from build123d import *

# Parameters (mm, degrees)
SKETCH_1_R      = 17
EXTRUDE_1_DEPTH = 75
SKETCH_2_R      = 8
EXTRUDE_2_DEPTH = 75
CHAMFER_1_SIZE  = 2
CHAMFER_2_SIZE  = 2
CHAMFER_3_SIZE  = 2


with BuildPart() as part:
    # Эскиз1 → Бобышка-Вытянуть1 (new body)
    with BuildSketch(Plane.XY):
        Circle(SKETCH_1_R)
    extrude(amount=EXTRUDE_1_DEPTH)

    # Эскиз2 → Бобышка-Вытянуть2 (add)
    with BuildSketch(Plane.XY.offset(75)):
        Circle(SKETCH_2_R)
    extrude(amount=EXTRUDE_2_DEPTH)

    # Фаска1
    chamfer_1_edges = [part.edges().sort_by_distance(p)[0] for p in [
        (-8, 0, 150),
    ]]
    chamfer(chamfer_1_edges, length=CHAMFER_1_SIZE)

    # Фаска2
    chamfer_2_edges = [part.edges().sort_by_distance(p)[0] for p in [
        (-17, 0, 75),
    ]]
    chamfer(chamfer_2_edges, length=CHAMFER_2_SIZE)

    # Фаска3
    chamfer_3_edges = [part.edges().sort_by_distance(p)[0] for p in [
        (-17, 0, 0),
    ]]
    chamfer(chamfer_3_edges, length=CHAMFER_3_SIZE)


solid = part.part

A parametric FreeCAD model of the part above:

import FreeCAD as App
import Part
import Sketcher
Q = App.Units.Quantity


def edges_at(feature, points):
    """Names of the edges that pass closest to the given points."""
    edges = feature.Shape.Edges
    near = lambda p: min(range(len(edges)), key=lambda i: edges[i].distToShape(Part.Vertex(*p))[0])
    return sorted({f"Edge{near(p) + 1}" for p in points})

doc = App.newDocument("Part")
body = doc.addObject("PartDesign::Body", "Body")

sketch1 = doc.addObject("Sketcher::SketchObject", "Sketch")
body.addObject(sketch1)
sketch1.AttachmentSupport = (doc.XY_Plane, [""])
sketch1.MapMode = "FlatFace"
sketch1.addGeometry(Part.Circle(App.Vector(0, 0, 0), App.Vector(0, 0, 1), 17), False)
sketch1.addConstraint([
    Sketcher.Constraint("Coincident", 0, 3, -1, 1),
    Sketcher.Constraint("Diameter", 0, Q("34 mm")),
])
pad1 = doc.addObject("PartDesign::Pad", "Pad")
body.addObject(pad1)
pad1.Profile = sketch1
pad1.Length = 75

sketch2 = doc.addObject("Sketcher::SketchObject", "Sketch001")
body.addObject(sketch2)
sketch2.AttachmentSupport = (doc.XY_Plane, [""])
sketch2.MapMode = "FlatFace"
sketch2.AttachmentOffset = App.Placement(App.Vector(0, 0, 75), App.Rotation())
sketch2.addGeometry(Part.Circle(App.Vector(0, 0, 0), App.Vector(0, 0, 1), 8), False)
sketch2.addConstraint([
    Sketcher.Constraint("Coincident", 0, 3, -1, 1),
    Sketcher.Constraint("Diameter", 0, Q("16 mm")),
])
pad2 = doc.addObject("PartDesign::Pad", "Pad001")
body.addObject(pad2)
pad2.Profile = sketch2
pad2.Length = 75
doc.recompute()

chamfer = doc.addObject("PartDesign::Chamfer", "Chamfer")
body.addObject(chamfer)
chamfer.Base = (pad2, edges_at(pad2, [(-8, 0, 150)]))
chamfer.Size = 2
doc.recompute()

chamfer2 = doc.addObject("PartDesign::Chamfer", "Chamfer001")
body.addObject(chamfer2)
chamfer2.Base = (chamfer, edges_at(chamfer, [(-17, 0, 75)]))
chamfer2.Size = 2
doc.recompute()

chamfer3 = doc.addObject("PartDesign::Chamfer", "Chamfer002")
body.addObject(chamfer3)
chamfer3.Base = (chamfer2, edges_at(chamfer2, [(-17, 0, 0)]))
chamfer3.Size = 2

doc.recompute()
